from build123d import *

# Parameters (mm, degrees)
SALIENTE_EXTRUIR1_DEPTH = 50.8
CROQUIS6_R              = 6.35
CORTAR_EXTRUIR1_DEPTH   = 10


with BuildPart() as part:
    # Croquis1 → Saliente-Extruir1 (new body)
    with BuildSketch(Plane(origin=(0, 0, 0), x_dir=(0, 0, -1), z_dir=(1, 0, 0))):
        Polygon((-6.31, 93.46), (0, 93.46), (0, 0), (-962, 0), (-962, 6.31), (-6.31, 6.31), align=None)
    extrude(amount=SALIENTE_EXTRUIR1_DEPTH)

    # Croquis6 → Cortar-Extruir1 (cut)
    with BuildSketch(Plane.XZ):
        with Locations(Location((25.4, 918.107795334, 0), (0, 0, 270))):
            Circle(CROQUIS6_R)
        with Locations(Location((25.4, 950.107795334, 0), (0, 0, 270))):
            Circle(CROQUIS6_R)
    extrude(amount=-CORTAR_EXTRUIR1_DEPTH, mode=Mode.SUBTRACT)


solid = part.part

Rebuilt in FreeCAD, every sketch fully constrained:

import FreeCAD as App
import Part
import Sketcher


def add_polygon(sketch, points):
    """Adds a closed chain of lines whose ends are joined by coincident constraints."""
    first, n = sketch.GeometryCount, len(points)
    for a, b in zip(points, points[1:] + points[:1]):
        sketch.addGeometry(Part.LineSegment(App.Vector(*a, 0), App.Vector(*b, 0)), False)
    for i in range(n):
        sketch.addConstraint(Sketcher.Constraint("Coincident", first + i, 2, first + (i + 1) % n, 1))

doc = App.newDocument("Part")
body = doc.addObject("PartDesign::Body", "Body")

# Sketch on YZ plane
sketch1 = doc.addObject("Sketcher::SketchObject", "Sketch")
body.addObject(sketch1)
sketch1.AttachmentSupport = (doc.YZ_Plane, [""])
sketch1.MapMode = "FlatFace"
add_polygon(sketch1, [(93, 0), (93, 6), (6, 6), (6, 962), (0, 962), (0, 0)])  # lines 0-5
sketch1.addConstraint(Sketcher.Constraint("Vertical", 0))
sketch1.addConstraint(Sketcher.Constraint("Horizontal", 1))
sketch1.addConstraint(Sketcher.Constraint("Vertical", 2))
sketch1.addConstraint(Sketcher.Constraint("Horizontal", 3))
sketch1.addConstraint(Sketcher.Constraint("Vertical", 4))
sketch1.addConstraint(Sketcher.Constraint("Horizontal", 5))
sketch1.addConstraint(Sketcher.Constraint("Coincident", 4, 2, -1, 1))
sketch1.addConstraint(Sketcher.Constraint("Equal", 3, 0))
sketch1.addConstraint(Sketcher.Constraint("DistanceY", 4, 2, 4, 1, 962.0))
sketch1.addConstraint(Sketcher.Constraint("DistanceX", 1, 2, 1, 1, 87.15))
sketch1.addConstraint(Sketcher.Constraint("DistanceX", 3, 2, 3, 1, 6.31))
pad1 = doc.addObject("PartDesign::Pad", "Pad")
body.addObject(pad1)
pad1.Profile = sketch1
pad1.Length = 50.8

# Sketch on XZ plane
sketch2 = doc.addObject("Sketcher::SketchObject", "Sketch001")
body.addObject(sketch2)
sketch2.AttachmentSupport = (doc.XZ_Plane, [""])
sketch2.MapMode = "FlatFace"
sketch2.addGeometry(Part.Circle(App.Vector(25, 918, 0), App.Vector(0, 0, 1), 6), False)
sketch2.addGeometry(Part.Circle(App.Vector(25, 950, 0), App.Vector(0, 0, 1), 6), False)
sketch2.addConstraint(Sketcher.Constraint("Equal", 0, 1))
sketch2.addConstraint(Sketcher.Constraint("Vertical", 0, 3, 1, 3))
sketch2.addConstraint(Sketcher.Constraint("Diameter", 0, 12.7))
sketch2.addConstraint(Sketcher.Constraint("DistanceY", 0, 3, 1, 3, 32.0))
sketch2.addConstraint(Sketcher.Constraint("DistanceX", -1, 1, 0, 3, 25.4))
sketch2.addConstraint(Sketcher.Constraint("DistanceY", -1, 1, 0, 3, 918.107795))
pocket1 = doc.addObject("PartDesign::Pocket", "Pocket")
body.addObject(pocket1)
pocket1.Profile = sketch2
pocket1.Length = 10

doc.recompute()
